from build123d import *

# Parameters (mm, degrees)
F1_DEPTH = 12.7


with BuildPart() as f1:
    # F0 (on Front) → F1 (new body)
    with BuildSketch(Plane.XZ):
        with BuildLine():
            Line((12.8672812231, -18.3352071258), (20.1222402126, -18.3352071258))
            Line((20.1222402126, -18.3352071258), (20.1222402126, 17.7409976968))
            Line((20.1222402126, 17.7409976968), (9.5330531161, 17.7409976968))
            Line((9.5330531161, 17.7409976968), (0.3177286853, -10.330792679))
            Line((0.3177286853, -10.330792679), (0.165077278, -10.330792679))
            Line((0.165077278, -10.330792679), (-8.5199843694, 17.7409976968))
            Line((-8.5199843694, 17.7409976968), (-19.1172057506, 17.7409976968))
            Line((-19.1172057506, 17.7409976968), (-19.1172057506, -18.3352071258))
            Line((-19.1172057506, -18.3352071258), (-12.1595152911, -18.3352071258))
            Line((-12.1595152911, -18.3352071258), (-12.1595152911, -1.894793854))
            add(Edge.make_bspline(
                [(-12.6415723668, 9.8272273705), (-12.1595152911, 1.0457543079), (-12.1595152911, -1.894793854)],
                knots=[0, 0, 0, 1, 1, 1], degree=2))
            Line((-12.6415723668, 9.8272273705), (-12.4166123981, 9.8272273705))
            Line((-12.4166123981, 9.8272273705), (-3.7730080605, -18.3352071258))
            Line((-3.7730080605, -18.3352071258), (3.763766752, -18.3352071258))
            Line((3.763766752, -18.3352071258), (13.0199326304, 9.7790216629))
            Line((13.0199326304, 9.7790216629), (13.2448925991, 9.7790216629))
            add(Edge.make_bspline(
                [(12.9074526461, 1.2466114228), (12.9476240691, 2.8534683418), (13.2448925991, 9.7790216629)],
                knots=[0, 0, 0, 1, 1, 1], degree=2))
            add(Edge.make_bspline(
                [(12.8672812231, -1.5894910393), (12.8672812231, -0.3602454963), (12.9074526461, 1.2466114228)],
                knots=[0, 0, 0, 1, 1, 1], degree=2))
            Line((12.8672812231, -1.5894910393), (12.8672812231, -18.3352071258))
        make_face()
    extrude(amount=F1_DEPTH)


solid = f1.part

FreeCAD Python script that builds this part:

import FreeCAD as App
import Part
import Sketcher
from FreeCAD import Vector
Q = App.Units.Quantity

doc = App.newDocument("Part")
body = doc.addObject("PartDesign::Body", "Body")

sketch1 = body.newObject("Sketcher::SketchObject", "Sketch")
sketch1.AttachmentSupport = (doc.getObject("XZ_Plane"), [""])
sketch1.MapMode = "FlatFace"
sketch1.addGeometry(Part.LineSegment(Vector(12.867281, -18.335207, 0), Vector(20.12224, -18.335207, 0)), False)
sketch1.addGeometry(Part.LineSegment(Vector(20.12224, -18.335207, 0), Vector(20.12224, 17.740998, 0)), False)
sketch1.addGeometry(Part.LineSegment(Vector(20.12224, 17.740998, 0), Vector(9.533053, 17.740998, 0)), False)
sketch1.addGeometry(Part.LineSegment(Vector(9.533053, 17.740998, 0), Vector(0.317729, -10.330793, 0)), False)
sketch1.addGeometry(Part.LineSegment(Vector(0.317729, -10.330793, 0), Vector(0.165077, -10.330793, 0)), False)
sketch1.addGeometry(Part.LineSegment(Vector(0.165077, -10.330793, 0), Vector(-8.519984, 17.740998, 0)), False)
sketch1.addGeometry(Part.LineSegment(Vector(-8.519984, 17.740998, 0), Vector(-19.117206, 17.740998, 0)), False)
sketch1.addGeometry(Part.LineSegment(Vector(-19.117206, 17.740998, 0), Vector(-19.117206, -18.335207, 0)), False)
sketch1.addGeometry(Part.LineSegment(Vector(-19.117206, -18.335207, 0), Vector(-12.159515, -18.335207, 0)), False)
sketch1.addGeometry(Part.LineSegment(Vector(-12.159515, -18.335207, 0), Vector(-12.159515, -1.894794, 0)), False)
sketch1.addGeometry(Part.BSplineCurve([Vector(-12.641572, 9.827227, 0), Vector(-12.159515, 1.045754, 0), Vector(-12.159515, -1.894794, 0)], [3, 3], [0, 1], False, 2, [1, 1, 1], False), False)
sketch1.addGeometry(Part.LineSegment(Vector(-12.641572, 9.827227, 0), Vector(-12.416612, 9.827227, 0)), False)
sketch1.addGeometry(Part.LineSegment(Vector(-12.416612, 9.827227, 0), Vector(-3.773008, -18.335207, 0)), False)
sketch1.addGeometry(Part.LineSegment(Vector(-3.773008, -18.335207, 0), Vector(3.763767, -18.335207, 0)), False)
sketch1.addGeometry(Part.LineSegment(Vector(3.763767, -18.335207, 0), Vector(13.019933, 9.779022, 0)), False)
sketch1.addGeometry(Part.LineSegment(Vector(13.019933, 9.779022, 0), Vector(13.244893, 9.779022, 0)), False)
sketch1.addGeometry(Part.BSplineCurve([Vector(12.907453, 1.246611, 0), Vector(12.947624, 2.853468, 0), Vector(13.244893, 9.779022, 0)], [3, 3], [0, 1], False, 2, [1, 1, 1], False), False)
sketch1.addGeometry(Part.BSplineCurve([Vector(12.867281, -1.589491, 0), Vector(12.867281, -0.360245, 0), Vector(12.907453, 1.246611, 0)], [3, 3], [0, 1], False, 2, [1, 1, 1], False), False)
sketch1.addGeometry(Part.LineSegment(Vector(12.867281, -1.589491, 0), Vector(12.867281, -18.335207, 0)), False)
sketch1.addConstraint(Sketcher.Constraint("Block", 10))
sketch1.addConstraint(Sketcher.Constraint("Block", 16))
sketch1.addConstraint(Sketcher.Constraint("Block", 17))
sketch1.addConstraint(Sketcher.Constraint("Coincident", 0, 2, 1, 1))
sketch1.addConstraint(Sketcher.Constraint("Coincident", 1, 2, 2, 1))
sketch1.addConstraint(Sketcher.Constraint("Coincident", 2, 2, 3, 1))
sketch1.addConstraint(Sketcher.Constraint("Coincident", 3, 2, 4, 1))
sketch1.addConstraint(Sketcher.Constraint("Coincident", 4, 2, 5, 1))
sketch1.addConstraint(Sketcher.Constraint("Coincident", 5, 2, 6, 1))
sketch1.addConstraint(Sketcher.Constraint("Coincident", 6, 2, 7, 1))
sketch1.addConstraint(Sketcher.Constraint("Coincident", 7, 2, 8, 1))
sketch1.addConstraint(Sketcher.Constraint("Coincident", 8, 2, 9, 1))
sketch1.addConstraint(Sketcher.Constraint("Coincident", 9, 2, 10, 2))
sketch1.addConstraint(Sketcher.Constraint("Coincident", 10, 1, 11, 1))
sketch1.addConstraint(Sketcher.Constraint("Coincident", 11, 2, 12, 1))
sketch1.addConstraint(Sketcher.Constraint("Coincident", 12, 2, 13, 1))
sketch1.addConstraint(Sketcher.Constraint("Coincident", 13, 2, 14, 1))
sketch1.addConstraint(Sketcher.Constraint("Coincident", 14, 2, 15, 1))
sketch1.addConstraint(Sketcher.Constraint("Coincident", 15, 2, 16, 2))
sketch1.addConstraint(Sketcher.Constraint("Coincident", 17, 1, 18, 1))
sketch1.addConstraint(Sketcher.Constraint("Coincident", 18, 2, 0, 1))
sketch1.addConstraint(Sketcher.Constraint("Horizontal", 0))
sketch1.addConstraint(Sketcher.Constraint("Vertical", 1))
sketch1.addConstraint(Sketcher.Constraint("Horizontal", 2))
sketch1.addConstraint(Sketcher.Constraint("Horizontal", 4))
sketch1.addConstraint(Sketcher.Constraint("Horizontal", 6))
sketch1.addConstraint(Sketcher.Constraint("Vertical", 7))
sketch1.addConstraint(Sketcher.Constraint("Horizontal", 8))
sketch1.addConstraint(Sketcher.Constraint("Vertical", 9))
sketch1.addConstraint(Sketcher.Constraint("Horizontal", 11))
sketch1.addConstraint(Sketcher.Constraint("Horizontal", 13))
sketch1.addConstraint(Sketcher.Constraint("Horizontal", 15))
sketch1.addConstraint(Sketcher.Constraint("Vertical", 18))
sketch1.addConstraint(Sketcher.Constraint("Horizontal", 2, 2, 5, 2))
sketch1.addConstraint(Sketcher.Constraint("Horizontal", 0, 2, 7, 2))
sketch1.addConstraint(Sketcher.Constraint("Horizontal", 8, 2, 12, 2))
sketch1.addConstraint(Sketcher.Constraint("Equal", 11, 15))
sketch1.addConstraint(Sketcher.Constraint("DistanceX", 0, 1, 0, 2, Q("7.254959 mm")))
sketch1.addConstraint(Sketcher.Constraint("DistanceX", 4, 2, 4, 1, Q("0.152651 mm")))
sketch1.addConstraint(Sketcher.Constraint("DistanceX", 6, 2, 6, 1, Q("10.597221 mm")))
sketch1.addConstraint(Sketcher.Constraint("DistanceX", 8, 1, 8, 2, Q("6.95769 mm")))
sketch1.addConstraint(Sketcher.Constraint("DistanceX", 11, 1, 11, 2, Q("0.22496 mm")))
sketch1.addConstraint(Sketcher.Constraint("DistanceY", 4, 2, 9, 2, Q("8.435999 mm")))
sketch1.addConstraint(Sketcher.Constraint("DistanceX", 2, 2, 2, 1, Q("10.589187 mm")))
sketch1.addConstraint(Sketcher.Constraint("DistanceX", 13, 1, 13, 2, Q("7.536775 mm")))
sketch1.addConstraint(Sketcher.Constraint("DistanceY", 1, 1, 1, 2, Q("36.076205 mm")))
sketch1.addConstraint(Sketcher.Constraint("DistanceY", 9, 1, 9, 2, Q("16.440413 mm")))
sketch1.addConstraint(Sketcher.Constraint("DistanceX", -1, 1, 3, 2, Q("0.317729 mm")))
sketch1.addConstraint(Sketcher.Constraint("DistanceX", 12, 2, -1, 1, Q("3.773008 mm")))
pad1 = body.newObject("PartDesign::Pad", "Pad")
pad1.Profile = sketch1
pad1.Length = Q("0.5 in")

doc.recompute()
